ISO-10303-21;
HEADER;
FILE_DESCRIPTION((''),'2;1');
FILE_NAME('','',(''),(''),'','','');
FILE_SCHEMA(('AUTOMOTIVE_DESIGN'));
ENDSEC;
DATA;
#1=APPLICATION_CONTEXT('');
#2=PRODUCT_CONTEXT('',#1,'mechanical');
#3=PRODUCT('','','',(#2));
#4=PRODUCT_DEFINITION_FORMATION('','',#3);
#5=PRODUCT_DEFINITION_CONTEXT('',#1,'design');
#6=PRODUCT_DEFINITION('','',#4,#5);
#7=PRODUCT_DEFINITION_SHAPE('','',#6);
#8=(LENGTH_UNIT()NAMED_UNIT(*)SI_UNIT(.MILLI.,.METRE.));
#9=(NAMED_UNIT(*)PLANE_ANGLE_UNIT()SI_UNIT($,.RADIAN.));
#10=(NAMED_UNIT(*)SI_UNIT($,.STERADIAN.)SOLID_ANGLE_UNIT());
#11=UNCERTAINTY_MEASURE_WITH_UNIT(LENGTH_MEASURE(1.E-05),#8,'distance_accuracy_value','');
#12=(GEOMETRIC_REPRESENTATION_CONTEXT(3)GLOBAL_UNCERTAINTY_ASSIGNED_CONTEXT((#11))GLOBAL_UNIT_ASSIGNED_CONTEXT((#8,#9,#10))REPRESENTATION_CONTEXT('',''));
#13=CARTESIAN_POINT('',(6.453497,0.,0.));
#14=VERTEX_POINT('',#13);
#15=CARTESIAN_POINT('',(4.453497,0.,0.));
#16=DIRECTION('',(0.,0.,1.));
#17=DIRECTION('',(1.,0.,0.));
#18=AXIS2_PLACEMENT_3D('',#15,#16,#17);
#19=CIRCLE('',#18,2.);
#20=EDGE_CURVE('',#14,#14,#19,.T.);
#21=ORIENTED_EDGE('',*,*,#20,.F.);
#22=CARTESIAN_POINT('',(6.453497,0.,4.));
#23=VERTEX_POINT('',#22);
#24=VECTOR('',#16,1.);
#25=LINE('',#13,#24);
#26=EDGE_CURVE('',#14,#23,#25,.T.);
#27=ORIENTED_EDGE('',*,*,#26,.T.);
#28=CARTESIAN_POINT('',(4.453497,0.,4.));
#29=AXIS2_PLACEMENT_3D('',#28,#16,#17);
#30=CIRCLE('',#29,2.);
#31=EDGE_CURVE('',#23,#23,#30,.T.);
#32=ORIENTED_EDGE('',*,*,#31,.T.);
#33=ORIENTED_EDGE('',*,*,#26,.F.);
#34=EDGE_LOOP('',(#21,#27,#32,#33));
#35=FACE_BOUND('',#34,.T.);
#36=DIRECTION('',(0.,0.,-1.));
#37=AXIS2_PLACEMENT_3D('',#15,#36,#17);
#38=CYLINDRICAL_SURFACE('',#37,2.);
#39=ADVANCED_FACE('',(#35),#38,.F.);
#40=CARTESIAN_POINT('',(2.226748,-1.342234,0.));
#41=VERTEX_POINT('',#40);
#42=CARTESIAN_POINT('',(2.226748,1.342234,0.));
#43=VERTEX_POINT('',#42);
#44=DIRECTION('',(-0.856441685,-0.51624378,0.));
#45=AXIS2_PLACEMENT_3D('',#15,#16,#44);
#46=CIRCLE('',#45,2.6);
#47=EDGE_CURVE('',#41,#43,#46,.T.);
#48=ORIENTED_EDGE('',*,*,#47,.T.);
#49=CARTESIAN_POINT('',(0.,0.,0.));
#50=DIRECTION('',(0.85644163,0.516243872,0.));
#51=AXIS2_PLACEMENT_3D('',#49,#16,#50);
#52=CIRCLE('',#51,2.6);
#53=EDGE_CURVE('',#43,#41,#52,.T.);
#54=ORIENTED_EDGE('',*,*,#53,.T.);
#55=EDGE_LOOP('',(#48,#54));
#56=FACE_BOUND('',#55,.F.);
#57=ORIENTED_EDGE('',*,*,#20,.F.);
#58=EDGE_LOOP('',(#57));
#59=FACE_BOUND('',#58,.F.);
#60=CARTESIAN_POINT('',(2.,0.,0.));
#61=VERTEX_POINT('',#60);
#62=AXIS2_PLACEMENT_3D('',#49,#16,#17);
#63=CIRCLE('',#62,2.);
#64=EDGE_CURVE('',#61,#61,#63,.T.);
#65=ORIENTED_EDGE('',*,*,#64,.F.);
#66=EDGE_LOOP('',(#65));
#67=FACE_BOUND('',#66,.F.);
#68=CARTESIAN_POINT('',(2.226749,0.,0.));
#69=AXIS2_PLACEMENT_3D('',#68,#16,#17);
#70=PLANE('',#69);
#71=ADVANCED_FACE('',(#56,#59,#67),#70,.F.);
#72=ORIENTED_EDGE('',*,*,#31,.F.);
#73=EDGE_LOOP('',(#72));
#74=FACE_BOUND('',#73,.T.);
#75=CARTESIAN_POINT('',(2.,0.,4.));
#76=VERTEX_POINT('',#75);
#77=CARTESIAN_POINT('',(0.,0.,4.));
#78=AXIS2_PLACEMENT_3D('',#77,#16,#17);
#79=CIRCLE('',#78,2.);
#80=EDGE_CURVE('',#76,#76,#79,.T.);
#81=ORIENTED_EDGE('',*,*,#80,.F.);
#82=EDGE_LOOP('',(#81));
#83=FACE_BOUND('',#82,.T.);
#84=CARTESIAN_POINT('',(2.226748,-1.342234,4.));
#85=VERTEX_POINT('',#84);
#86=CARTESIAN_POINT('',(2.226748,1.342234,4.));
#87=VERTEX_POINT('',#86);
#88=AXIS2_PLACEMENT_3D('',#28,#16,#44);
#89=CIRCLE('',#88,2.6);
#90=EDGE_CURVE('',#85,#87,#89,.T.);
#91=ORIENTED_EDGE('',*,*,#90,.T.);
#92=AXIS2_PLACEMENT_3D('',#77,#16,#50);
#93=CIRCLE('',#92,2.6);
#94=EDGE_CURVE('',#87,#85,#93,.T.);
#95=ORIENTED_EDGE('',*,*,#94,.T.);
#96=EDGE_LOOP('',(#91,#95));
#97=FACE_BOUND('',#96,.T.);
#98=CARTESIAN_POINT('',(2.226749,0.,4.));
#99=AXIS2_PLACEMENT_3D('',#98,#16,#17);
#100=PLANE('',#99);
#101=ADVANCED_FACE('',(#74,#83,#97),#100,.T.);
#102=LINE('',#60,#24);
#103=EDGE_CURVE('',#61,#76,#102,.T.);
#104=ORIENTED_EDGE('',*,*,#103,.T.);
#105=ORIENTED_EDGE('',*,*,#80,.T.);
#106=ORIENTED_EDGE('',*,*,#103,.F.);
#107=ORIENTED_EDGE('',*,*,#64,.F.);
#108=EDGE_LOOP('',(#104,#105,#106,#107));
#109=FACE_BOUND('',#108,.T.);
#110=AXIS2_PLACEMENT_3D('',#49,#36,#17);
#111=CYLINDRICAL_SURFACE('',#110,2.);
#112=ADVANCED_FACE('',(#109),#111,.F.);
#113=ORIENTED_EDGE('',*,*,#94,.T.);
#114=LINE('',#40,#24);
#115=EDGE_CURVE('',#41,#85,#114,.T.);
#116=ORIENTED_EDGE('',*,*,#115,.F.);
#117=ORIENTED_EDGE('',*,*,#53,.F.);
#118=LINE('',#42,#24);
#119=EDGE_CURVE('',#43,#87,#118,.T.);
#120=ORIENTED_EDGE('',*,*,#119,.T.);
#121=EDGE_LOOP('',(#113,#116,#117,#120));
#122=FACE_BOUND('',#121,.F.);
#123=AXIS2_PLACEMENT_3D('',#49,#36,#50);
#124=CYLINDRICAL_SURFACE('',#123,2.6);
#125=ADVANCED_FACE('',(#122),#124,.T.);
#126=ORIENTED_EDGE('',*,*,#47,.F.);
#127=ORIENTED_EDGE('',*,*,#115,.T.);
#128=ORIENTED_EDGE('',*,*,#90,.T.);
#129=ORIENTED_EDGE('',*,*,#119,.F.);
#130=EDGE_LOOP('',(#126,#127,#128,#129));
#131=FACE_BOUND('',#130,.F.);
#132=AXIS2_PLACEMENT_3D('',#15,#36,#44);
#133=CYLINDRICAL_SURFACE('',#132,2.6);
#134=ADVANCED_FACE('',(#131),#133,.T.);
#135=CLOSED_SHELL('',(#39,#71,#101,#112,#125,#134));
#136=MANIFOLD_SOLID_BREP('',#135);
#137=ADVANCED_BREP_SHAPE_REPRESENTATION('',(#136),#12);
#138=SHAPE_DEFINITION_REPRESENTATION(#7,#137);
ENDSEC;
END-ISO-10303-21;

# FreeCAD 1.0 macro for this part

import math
import FreeCAD as App
import Part
import Sketcher
from FreeCAD import Vector
Q = App.Units.Quantity

doc = App.newDocument("Part")
params = doc.addObject("Spreadsheet::Sheet", "Params")
for row, (alias, value) in enumerate([
    ("sketch1_diameter", "4 mm"),
    ("sketch1_radius", "2.6 mm"),
    ("pad1_length", "4 mm"),
], start=1):
    params.set(f"A{row}", alias)
    params.set(f"B{row}", "=" + value)
    params.setAlias(f"B{row}", alias)

body = doc.addObject("PartDesign::Body", "Body")

# Sketch on XY plane
sketch1 = body.newObject("Sketcher::SketchObject", "Sketch")
sketch1.AttachmentSupport = (doc.getObject("XY_Plane"), [""])
sketch1.MapMode = "FlatFace"
sketch1.addGeometry(Part.ArcOfCircle(Part.Circle(Vector(4.453497, 0, 0), Vector(0, 0, 1), 2.6), math.radians(-148.919373), math.radians(148.919373)), False)
sketch1.addGeometry(Part.ArcOfCircle(Part.Circle(Vector(0, 0, 0), Vector(0, 0, 1), 2.6), math.radians(31.080633), math.radians(328.919367)), False)
sketch1.addGeometry(Part.Circle(Vector(0, 0, 0), Vector(0, 0, 1), 2), False)
sketch1.addGeometry(Part.Circle(Vector(4.453497, 0, 0), Vector(0, 0, 1), 2), False)
sketch1.addConstraint(Sketcher.Constraint("Coincident", 0, 1, 1, 2))
sketch1.addConstraint(Sketcher.Constraint("Coincident", 1, 1, 0, 2))
sketch1.addConstraint(Sketcher.Constraint("Coincident", 1, 3, -1, 1))
sketch1.addConstraint(Sketcher.Constraint("Coincident", 2, 3, -1, 1))
sketch1.addConstraint(Sketcher.Constraint("Coincident", 3, 3, 0, 3))
sketch1.addConstraint(Sketcher.Constraint("Equal", 0, 1))
sketch1.addConstraint(Sketcher.Constraint("Equal", 2, 3))
sketch1.addConstraint(Sketcher.Constraint("PointOnObject", 0, 3, -1))
sketch1.addConstraint(Sketcher.Constraint("Diameter", 2, Q("4 mm")))
sketch1.addConstraint(Sketcher.Constraint("Radius", 0, Q("2.6 mm")))
sketch1.addConstraint(Sketcher.Constraint("DistanceX", 1, 3, 0, 1, Q("2.226748 mm")))
sketch1.setExpression("Constraints[8]", "Params.sketch1_diameter")
sketch1.setExpression("Constraints[9]", "Params.sketch1_radius")
pad1 = body.newObject("PartDesign::Pad", "Pad")
pad1.Profile = sketch1
pad1.setExpression("Length", "Params.pad1_length")

doc.recompute()
